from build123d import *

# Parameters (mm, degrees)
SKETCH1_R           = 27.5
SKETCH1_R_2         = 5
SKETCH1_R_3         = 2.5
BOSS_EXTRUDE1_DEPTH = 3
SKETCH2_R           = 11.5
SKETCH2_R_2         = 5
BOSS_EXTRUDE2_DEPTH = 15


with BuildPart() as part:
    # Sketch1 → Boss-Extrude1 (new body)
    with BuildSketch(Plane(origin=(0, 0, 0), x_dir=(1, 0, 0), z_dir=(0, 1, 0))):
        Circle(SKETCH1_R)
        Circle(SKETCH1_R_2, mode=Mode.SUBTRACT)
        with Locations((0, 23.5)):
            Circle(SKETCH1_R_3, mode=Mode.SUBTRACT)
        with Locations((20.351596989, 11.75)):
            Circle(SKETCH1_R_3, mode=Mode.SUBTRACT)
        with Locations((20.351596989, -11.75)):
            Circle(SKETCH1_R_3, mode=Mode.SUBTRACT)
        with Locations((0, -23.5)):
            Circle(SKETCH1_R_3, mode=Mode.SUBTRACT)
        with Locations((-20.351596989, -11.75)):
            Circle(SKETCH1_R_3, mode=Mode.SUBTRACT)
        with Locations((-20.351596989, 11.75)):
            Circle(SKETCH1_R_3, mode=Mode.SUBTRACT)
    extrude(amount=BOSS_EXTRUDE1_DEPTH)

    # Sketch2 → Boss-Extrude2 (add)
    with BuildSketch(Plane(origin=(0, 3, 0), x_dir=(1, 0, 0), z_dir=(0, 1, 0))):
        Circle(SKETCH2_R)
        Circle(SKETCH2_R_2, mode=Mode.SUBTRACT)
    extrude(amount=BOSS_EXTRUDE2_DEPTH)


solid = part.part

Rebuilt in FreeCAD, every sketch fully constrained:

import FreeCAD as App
import Part
import Sketcher

V = App.Vector
Q = App.Units.Quantity

doc = App.newDocument("Part")
body = doc.addObject("PartDesign::Body", "Body")

sketch1 = doc.addObject("Sketcher::SketchObject", "Sketch")
body.addObject(sketch1)
sketch1.AttachmentSupport = (doc.XZ_Plane, [""])
sketch1.MapMode = "FlatFace"
sketch1.addGeometry([
    Part.Circle(V(0, 0, 0), V(0, 0, 1), 27.5),
    Part.Circle(V(-20.4, 11.8, 0), V(0, 0, 1), 2.5),
    Part.Circle(V(0, 23.5, 0), V(0, 0, 1), 2.5),
    Part.Circle(V(20.4, 11.8, 0), V(0, 0, 1), 2.5),
    Part.Circle(V(-20.4, -11.8, 0), V(0, 0, 1), 2.5),
    Part.Circle(V(0, 0, 0), V(0, 0, 1), 5),
    Part.Circle(V(20.4, -11.8, 0), V(0, 0, 1), 2.5),
    Part.Circle(V(0, -23.5, 0), V(0, 0, 1), 2.5),
], False)
sketch1.addConstraint([
    Sketcher.Constraint("Coincident", 0, 3, -1, 1),
    Sketcher.Constraint("Coincident", 5, 3, -1, 1),
    Sketcher.Constraint("Equal", 1, 2),
    Sketcher.Constraint("Equal", 2, 3),
    Sketcher.Constraint("Equal", 3, 4),
    Sketcher.Constraint("Equal", 4, 6),
    Sketcher.Constraint("Equal", 6, 7),
    Sketcher.Constraint("Symmetric", 3, 3, 4, 3, -1, 1),
    Sketcher.Constraint("Symmetric", 1, 3, 6, 3, -1, 1),
    Sketcher.Constraint("Symmetric", 2, 3, 7, 3, -1, 1),
    Sketcher.Constraint("Symmetric", 1, 3, 3, 3, -2),
    Sketcher.Constraint("PointOnObject", 2, 3, -2),
    Sketcher.Constraint("Diameter", 0, Q("55 mm")),
    Sketcher.Constraint("Diameter", 1, Q("5 mm")),
    Sketcher.Constraint("Diameter", 5, Q("10 mm")),
    Sketcher.Constraint("DistanceY", -1, 1, 2, 3, Q("23.5 mm")),
    Sketcher.Constraint("DistanceY", 4, 3, 1, 3, Q("23.5 mm")),
    Sketcher.Constraint("DistanceX", 1, 3, -1, 1, Q("20.351597 mm")),
])
pad1 = doc.addObject("PartDesign::Pad", "Pad")
body.addObject(pad1)
pad1.Profile = sketch1
pad1.Length = 3
pad1.Reversed = True

sketch2 = doc.addObject("Sketcher::SketchObject", "Sketch001")
body.addObject(sketch2)
sketch2.AttachmentSupport = (doc.XZ_Plane, [""])
sketch2.MapMode = "FlatFace"
sketch2.AttachmentOffset = App.Placement(V(0, 0, -3), App.Rotation())
sketch2.addGeometry([
    Part.Circle(V(0, 0, 0), V(0, 0, 1), 12),
    Part.Circle(V(0, 0, 0), V(0, 0, 1), 5),
], False)
sketch2.addConstraint([
    Sketcher.Constraint("Coincident", 0, 3, -1, 1),
    Sketcher.Constraint("Coincident", 1, 3, -1, 1),
    Sketcher.Constraint("Diameter", 0, Q("23 mm")),
    Sketcher.Constraint("Diameter", 1, Q("10 mm")),
])
pad2 = doc.addObject("PartDesign::Pad", "Pad001")
body.addObject(pad2)
pad2.Profile = sketch2
pad2.Length = 15
pad2.Reversed = True

doc.recompute()
